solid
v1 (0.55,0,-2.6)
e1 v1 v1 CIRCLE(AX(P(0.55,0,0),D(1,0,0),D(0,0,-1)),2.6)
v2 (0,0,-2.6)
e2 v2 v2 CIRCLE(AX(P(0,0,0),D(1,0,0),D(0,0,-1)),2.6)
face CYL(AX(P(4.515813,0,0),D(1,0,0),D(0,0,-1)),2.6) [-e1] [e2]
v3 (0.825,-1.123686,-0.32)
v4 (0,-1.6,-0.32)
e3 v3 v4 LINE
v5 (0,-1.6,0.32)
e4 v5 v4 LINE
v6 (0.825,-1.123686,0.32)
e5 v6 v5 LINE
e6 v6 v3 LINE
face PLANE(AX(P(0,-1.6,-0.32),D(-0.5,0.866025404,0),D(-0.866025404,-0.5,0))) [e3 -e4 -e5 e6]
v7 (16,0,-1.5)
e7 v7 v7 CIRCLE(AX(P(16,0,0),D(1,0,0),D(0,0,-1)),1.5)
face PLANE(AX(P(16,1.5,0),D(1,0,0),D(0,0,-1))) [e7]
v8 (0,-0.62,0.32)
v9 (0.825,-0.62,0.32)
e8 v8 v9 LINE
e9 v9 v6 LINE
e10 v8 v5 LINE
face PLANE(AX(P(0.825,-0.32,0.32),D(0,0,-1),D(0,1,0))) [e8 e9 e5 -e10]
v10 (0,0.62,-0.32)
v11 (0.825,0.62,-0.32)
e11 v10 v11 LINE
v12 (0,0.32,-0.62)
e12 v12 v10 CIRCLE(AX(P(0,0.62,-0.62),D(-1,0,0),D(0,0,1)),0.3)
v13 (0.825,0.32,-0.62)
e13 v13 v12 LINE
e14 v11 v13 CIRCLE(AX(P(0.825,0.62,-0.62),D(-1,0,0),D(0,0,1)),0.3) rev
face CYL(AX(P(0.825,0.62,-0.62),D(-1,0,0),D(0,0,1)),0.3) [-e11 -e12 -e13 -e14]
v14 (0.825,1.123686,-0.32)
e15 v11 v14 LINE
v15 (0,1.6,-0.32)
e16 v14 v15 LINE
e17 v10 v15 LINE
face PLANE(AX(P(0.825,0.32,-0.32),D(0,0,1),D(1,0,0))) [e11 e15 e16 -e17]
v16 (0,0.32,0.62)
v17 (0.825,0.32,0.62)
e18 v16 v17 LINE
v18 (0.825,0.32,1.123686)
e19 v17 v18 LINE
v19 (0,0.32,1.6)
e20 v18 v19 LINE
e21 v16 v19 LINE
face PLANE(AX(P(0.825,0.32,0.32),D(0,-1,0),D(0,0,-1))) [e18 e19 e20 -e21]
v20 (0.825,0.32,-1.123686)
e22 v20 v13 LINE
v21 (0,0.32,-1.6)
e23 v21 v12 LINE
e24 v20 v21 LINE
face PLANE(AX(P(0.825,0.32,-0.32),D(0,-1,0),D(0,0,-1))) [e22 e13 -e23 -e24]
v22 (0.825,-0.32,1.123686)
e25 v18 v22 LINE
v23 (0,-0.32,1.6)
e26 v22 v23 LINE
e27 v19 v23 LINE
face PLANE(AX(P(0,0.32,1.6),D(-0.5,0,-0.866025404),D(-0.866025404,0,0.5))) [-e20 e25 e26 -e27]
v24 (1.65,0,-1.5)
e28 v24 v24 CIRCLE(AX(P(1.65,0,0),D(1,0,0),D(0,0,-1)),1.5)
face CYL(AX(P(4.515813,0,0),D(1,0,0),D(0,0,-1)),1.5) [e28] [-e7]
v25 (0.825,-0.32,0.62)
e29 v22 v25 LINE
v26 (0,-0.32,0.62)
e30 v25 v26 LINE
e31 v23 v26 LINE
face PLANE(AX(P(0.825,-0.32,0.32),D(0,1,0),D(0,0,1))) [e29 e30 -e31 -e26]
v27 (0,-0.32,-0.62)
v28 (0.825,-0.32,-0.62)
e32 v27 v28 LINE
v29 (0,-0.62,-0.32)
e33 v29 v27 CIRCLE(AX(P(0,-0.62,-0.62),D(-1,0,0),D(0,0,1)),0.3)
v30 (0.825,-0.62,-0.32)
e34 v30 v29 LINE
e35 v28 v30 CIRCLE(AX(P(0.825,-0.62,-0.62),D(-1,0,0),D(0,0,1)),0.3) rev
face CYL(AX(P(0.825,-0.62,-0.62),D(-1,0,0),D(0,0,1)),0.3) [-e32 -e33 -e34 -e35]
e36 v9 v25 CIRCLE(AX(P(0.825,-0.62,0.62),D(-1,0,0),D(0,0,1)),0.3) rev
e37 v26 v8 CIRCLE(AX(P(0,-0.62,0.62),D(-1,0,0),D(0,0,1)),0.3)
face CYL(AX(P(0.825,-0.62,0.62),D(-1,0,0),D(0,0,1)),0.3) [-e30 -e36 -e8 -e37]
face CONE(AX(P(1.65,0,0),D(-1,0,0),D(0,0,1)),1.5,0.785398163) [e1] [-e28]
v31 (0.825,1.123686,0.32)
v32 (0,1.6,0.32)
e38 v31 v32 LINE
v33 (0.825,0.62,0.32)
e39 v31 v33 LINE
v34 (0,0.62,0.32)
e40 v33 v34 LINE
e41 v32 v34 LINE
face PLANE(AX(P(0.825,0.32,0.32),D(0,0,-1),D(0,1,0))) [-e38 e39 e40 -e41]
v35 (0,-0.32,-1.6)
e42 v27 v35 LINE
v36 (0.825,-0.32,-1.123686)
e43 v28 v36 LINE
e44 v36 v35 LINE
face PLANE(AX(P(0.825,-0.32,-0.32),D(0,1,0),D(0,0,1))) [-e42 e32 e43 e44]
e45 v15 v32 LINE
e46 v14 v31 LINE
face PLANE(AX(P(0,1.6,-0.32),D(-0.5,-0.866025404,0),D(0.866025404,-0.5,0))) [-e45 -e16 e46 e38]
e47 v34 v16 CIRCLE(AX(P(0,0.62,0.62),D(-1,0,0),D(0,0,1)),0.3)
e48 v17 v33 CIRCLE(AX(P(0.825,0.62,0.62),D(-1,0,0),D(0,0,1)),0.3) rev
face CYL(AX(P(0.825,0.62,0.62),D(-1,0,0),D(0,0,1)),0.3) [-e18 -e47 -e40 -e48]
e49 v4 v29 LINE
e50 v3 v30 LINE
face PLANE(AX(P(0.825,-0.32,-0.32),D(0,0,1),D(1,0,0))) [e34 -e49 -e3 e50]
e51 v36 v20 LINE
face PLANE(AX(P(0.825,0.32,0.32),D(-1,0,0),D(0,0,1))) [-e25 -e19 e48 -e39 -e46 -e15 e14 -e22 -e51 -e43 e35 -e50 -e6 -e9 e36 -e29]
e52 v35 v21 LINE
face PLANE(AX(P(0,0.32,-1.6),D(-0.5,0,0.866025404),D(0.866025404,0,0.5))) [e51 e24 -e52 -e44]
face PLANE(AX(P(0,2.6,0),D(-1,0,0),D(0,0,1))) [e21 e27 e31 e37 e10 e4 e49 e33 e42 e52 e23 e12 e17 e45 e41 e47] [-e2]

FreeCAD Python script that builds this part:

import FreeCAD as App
import Part
import Sketcher

V = App.Vector
Q = App.Units.Quantity


def edges_at(feature, points):
    """Names of the edges that pass closest to the given points."""
    edges = feature.Shape.Edges
    near = lambda p: min(range(len(edges)), key=lambda i: edges[i].distToShape(Part.Vertex(*p))[0])
    return sorted({f"Edge{near(p) + 1}" for p in points})


def faces_at(feature, points):
    """Names of the faces that lie closest to the given points."""
    faces = feature.Shape.Faces
    near = lambda p: min(range(len(faces)), key=lambda i: faces[i].distToShape(Part.Vertex(*p))[0])
    return sorted({f"Face{near(p) + 1}" for p in points})

doc = App.newDocument("Part")
body = doc.addObject("PartDesign::Body", "Body")

# Sketch on XY plane
sketch1 = doc.addObject("Sketcher::SketchObject", "Sketch")
body.addObject(sketch1)
sketch1.AttachmentSupport = (doc.XY_Plane, [""])
sketch1.MapMode = "FlatFace"
sketch1.addGeometry(Part.LineSegment(V(16, 1.5, 0), V(1.6, 1.5, 0)), False)
sketch1.addGeometry(Part.LineSegment(V(1.6, 1.5, 0), V(0.6, 2.6, 0)), False)
sketch1.addGeometry(Part.LineSegment(V(0.6, 2.6, 0), V(0, 2.6, 0)), False)
sketch1.addGeometry(Part.LineSegment(V(0, 2.6, 0), V(0, 0, 0)), False)
sketch1.addGeometry(Part.LineSegment(V(0, 0, 0), V(16, 0, 0)), False)
sketch1.addGeometry(Part.LineSegment(V(16, 0, 0), V(16, 1.5, 0)), False)
sketch1.addConstraint(Sketcher.Constraint("Coincident", 0, 2, 1, 1))
sketch1.addConstraint(Sketcher.Constraint("Coincident", 1, 2, 2, 1))
sketch1.addConstraint(Sketcher.Constraint("Coincident", 2, 2, 3, 1))
sketch1.addConstraint(Sketcher.Constraint("Coincident", 3, 2, 4, 1))
sketch1.addConstraint(Sketcher.Constraint("Coincident", 4, 2, 5, 1))
sketch1.addConstraint(Sketcher.Constraint("Coincident", 5, 2, 0, 1))
sketch1.addConstraint(Sketcher.Constraint("Horizontal", 0))
sketch1.addConstraint(Sketcher.Constraint("Horizontal", 2))
sketch1.addConstraint(Sketcher.Constraint("Vertical", 3))
sketch1.addConstraint(Sketcher.Constraint("Horizontal", 4))
sketch1.addConstraint(Sketcher.Constraint("Vertical", 5))
sketch1.addConstraint(Sketcher.Constraint("Coincident", 3, 2, -1, 1))
sketch1.addConstraint(Sketcher.Constraint("DistanceX", 4, 1, 4, 2, 16.0))
sketch1.addConstraint(Sketcher.Constraint("Angle", 1, Q("135 deg")))
sketch1.addConstraint(Sketcher.Constraint("DistanceY", 3, 2, 3, 1, 2.6))
sketch1.addConstraint(Sketcher.Constraint("DistanceY", 5, 1, 5, 2, 1.5))
sketch1.addConstraint(Sketcher.Constraint("DistanceX", 0, 2, 0, 1, 14.35))
revolution = doc.addObject("PartDesign::Revolution", "Revolution")
body.addObject(revolution)
revolution.Profile = sketch1
revolution.ReferenceAxis = (sketch1, ["H_Axis"])
revolution.Angle = 360

# Sketch on YZ plane
sketch2 = doc.addObject("Sketcher::SketchObject", "Sketch001")
body.addObject(sketch2)
sketch2.AttachmentSupport = (doc.YZ_Plane, [""])
sketch2.MapMode = "FlatFace"
sketch2.addGeometry(Part.LineSegment(V(0.3, -0.3, 0), V(1.6, -0.3, 0)), False)
sketch2.addGeometry(Part.LineSegment(V(1.6, -0.3, 0), V(1.6, 0.3, 0)), False)
sketch2.addGeometry(Part.LineSegment(V(1.6, 0.3, 0), V(0.3, 0.3, 0)), False)
sketch2.addGeometry(Part.LineSegment(V(0.3, 0.3, 0), V(0.3, 1.6, 0)), False)
sketch2.addGeometry(Part.LineSegment(V(0.3, 1.6, 0), V(-0.3, 1.6, 0)), False)
sketch2.addGeometry(Part.LineSegment(V(-0.3, 1.6, 0), V(-0.3, 0.3, 0)), False)
sketch2.addGeometry(Part.LineSegment(V(-0.3, 0.3, 0), V(-1.6, 0.3, 0)), False)
sketch2.addGeometry(Part.LineSegment(V(-1.6, 0.3, 0), V(-1.6, -0.3, 0)), False)
sketch2.addGeometry(Part.LineSegment(V(-1.6, -0.3, 0), V(-0.3, -0.3, 0)), False)
sketch2.addGeometry(Part.LineSegment(V(-0.3, -0.3, 0), V(-0.3, -1.6, 0)), False)
sketch2.addGeometry(Part.LineSegment(V(-0.3, -1.6, 0), V(0.3, -1.6, 0)), False)
sketch2.addGeometry(Part.LineSegment(V(0.3, -1.6, 0), V(0.3, -0.3, 0)), False)
sketch2.addConstraint(Sketcher.Constraint("Coincident", 0, 2, 1, 1))
sketch2.addConstraint(Sketcher.Constraint("Coincident", 1, 2, 2, 1))
sketch2.addConstraint(Sketcher.Constraint("Coincident", 2, 2, 3, 1))
sketch2.addConstraint(Sketcher.Constraint("Coincident", 3, 2, 4, 1))
sketch2.addConstraint(Sketcher.Constraint("Coincident", 4, 2, 5, 1))
sketch2.addConstraint(Sketcher.Constraint("Coincident", 5, 2, 6, 1))
sketch2.addConstraint(Sketcher.Constraint("Coincident", 6, 2, 7, 1))
sketch2.addConstraint(Sketcher.Constraint("Coincident", 7, 2, 8, 1))
sketch2.addConstraint(Sketcher.Constraint("Coincident", 8, 2, 9, 1))
sketch2.addConstraint(Sketcher.Constraint("Coincident", 9, 2, 10, 1))
sketch2.addConstraint(Sketcher.Constraint("Coincident", 10, 2, 11, 1))
sketch2.addConstraint(Sketcher.Constraint("Coincident", 11, 2, 0, 1))
sketch2.addConstraint(Sketcher.Constraint("Horizontal", 0))
sketch2.addConstraint(Sketcher.Constraint("Vertical", 1))
sketch2.addConstraint(Sketcher.Constraint("Horizontal", 2))
sketch2.addConstraint(Sketcher.Constraint("Vertical", 3))
sketch2.addConstraint(Sketcher.Constraint("Horizontal", 4))
sketch2.addConstraint(Sketcher.Constraint("Vertical", 5))
sketch2.addConstraint(Sketcher.Constraint("Horizontal", 6))
sketch2.addConstraint(Sketcher.Constraint("Vertical", 7))
sketch2.addConstraint(Sketcher.Constraint("Horizontal", 8))
sketch2.addConstraint(Sketcher.Constraint("Vertical", 9))
sketch2.addConstraint(Sketcher.Constraint("Horizontal", 10))
sketch2.addConstraint(Sketcher.Constraint("Vertical", 11))
sketch2.addConstraint(Sketcher.Constraint("Symmetric", 0, 2, 6, 2, -1, 1))
sketch2.addConstraint(Sketcher.Constraint("Symmetric", 2, 2, 8, 2, -1, 1))
sketch2.addConstraint(Sketcher.Constraint("Symmetric", 4, 2, 10, 2, -1, 1))
sketch2.addConstraint(Sketcher.Constraint("Symmetric", 2, 2, 5, 2, -2))
sketch2.addConstraint(Sketcher.Constraint("Equal", 10, 1))
sketch2.addConstraint(Sketcher.Constraint("Equal", 8, 3))
sketch2.addConstraint(Sketcher.Constraint("DistanceX", 0, 1, 0, 2, 1.28))
sketch2.addConstraint(Sketcher.Constraint("DistanceX", 4, 2, 4, 1, 0.64))
pocket1 = doc.addObject("PartDesign::Pocket", "Pocket")
body.addObject(pocket1)
pocket1.Profile = sketch2
pocket1.Length = 0.825
pocket1.Reversed = True
doc.recompute()

draft = doc.addObject("PartDesign::Draft", "Draft")
body.addObject(draft)
draft.Base = (pocket1, faces_at(pocket1, [
    (0.412, 1.6, 0),
    (0.412, 0, 1.6),
    (0.412, -1.6, 0),
    (0.412, 0, -1.6),
]))
draft.NeutralPlane = (doc.YZ_Plane, [""])
draft.Angle = 30
draft.Reversed = True
doc.recompute()

fillet = doc.addObject("PartDesign::Fillet", "Fillet")
body.addObject(fillet)
fillet.Base = (draft, edges_at(draft, [
    (0.412, 0.32, 0.32),
    (0.412, -0.32, 0.32),
    (0.412, -0.32, -0.32),
    (0.412, 0.32, -0.32),
]))
fillet.Radius = 0.3

doc.recompute()
